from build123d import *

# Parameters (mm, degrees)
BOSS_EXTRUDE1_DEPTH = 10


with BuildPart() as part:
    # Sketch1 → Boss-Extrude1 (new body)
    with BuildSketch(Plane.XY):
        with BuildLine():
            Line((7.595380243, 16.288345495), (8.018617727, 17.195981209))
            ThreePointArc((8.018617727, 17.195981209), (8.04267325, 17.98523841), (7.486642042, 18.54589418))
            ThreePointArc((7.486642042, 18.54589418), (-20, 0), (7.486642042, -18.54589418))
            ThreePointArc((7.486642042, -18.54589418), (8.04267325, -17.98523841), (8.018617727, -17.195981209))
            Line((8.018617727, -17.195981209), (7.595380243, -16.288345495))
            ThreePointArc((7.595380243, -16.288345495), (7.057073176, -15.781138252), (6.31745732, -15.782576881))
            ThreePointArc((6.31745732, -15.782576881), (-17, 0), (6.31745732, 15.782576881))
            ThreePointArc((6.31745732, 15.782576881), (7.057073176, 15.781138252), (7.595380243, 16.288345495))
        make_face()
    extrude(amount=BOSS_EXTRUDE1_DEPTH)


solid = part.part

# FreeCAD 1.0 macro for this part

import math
import FreeCAD as App
import Part
import Sketcher
Q = App.Units.Quantity

doc = App.newDocument("Part")
body = doc.addObject("PartDesign::Body", "Body")

# Sketch on XY plane
sketch1 = doc.addObject("Sketcher::SketchObject", "Sketch")
body.addObject(sketch1)
sketch1.AttachmentSupport = (doc.XY_Plane, [""])
sketch1.MapMode = "FlatFace"
sketch1.addGeometry([
    Part.LineSegment(App.Vector(7.59538, 16.288345, 0), App.Vector(8.018618, 17.195981, 0)),  # 0
    Part.ArcOfCircle(Part.Circle(App.Vector(7.11231, 17.618599, 0), App.Vector(0, 0, 1), 1), math.radians(-25), math.radians(68.016961)),  # 1
    Part.ArcOfCircle(Part.Circle(App.Vector(0, 0, 0), App.Vector(0, 0, 1), 20), math.radians(68.016961), math.radians(291.983039)),  # 2
    Part.ArcOfCircle(Part.Circle(App.Vector(7.11231, -17.618599, 0), App.Vector(0, 0, 1), 1), math.radians(-68.016961), math.radians(25)),  # 3
    Part.LineSegment(App.Vector(8.018618, -17.195981, 0), App.Vector(7.59538, -16.288345, 0)),  # 4
    Part.ArcOfCircle(Part.Circle(App.Vector(6.689072, -16.710964, 0), App.Vector(0, 0, 1), 1), math.radians(25), math.radians(111.815261)),  # 5
    Part.ArcOfCircle(Part.Circle(App.Vector(0, 0, 0), App.Vector(0, 0, 1), 17), math.radians(68.184739), math.radians(291.815261)),  # 6
    Part.ArcOfCircle(Part.Circle(App.Vector(6.689072, 16.710964, 0), App.Vector(0, 0, 1), 1), math.radians(-111.815261), math.radians(-25)),  # 7
], False)
sketch1.addConstraint([
    Sketcher.Constraint("Tangent", 0, 2, 1, 1),
    Sketcher.Constraint("Tangent", 1, 2, 2, 1),
    Sketcher.Constraint("Tangent", 2, 2, 3, 1),
    Sketcher.Constraint("Tangent", 3, 2, 4, 1),
    Sketcher.Constraint("Tangent", 4, 2, 5, 1),
    Sketcher.Constraint("Tangent", 5, 2, 6, 2),
    Sketcher.Constraint("Tangent", 6, 1, 7, 1),
    Sketcher.Constraint("Tangent", 7, 2, 0, 1),
    Sketcher.Constraint("Coincident", 2, 3, -1, 1),
    Sketcher.Constraint("Coincident", 6, 3, -1, 1),
    Sketcher.Constraint("Equal", 1, 3),
    Sketcher.Constraint("Equal", 3, 5),
    Sketcher.Constraint("Equal", 5, 7),
    Sketcher.Constraint("Symmetric", 0, 2, 3, 2, -1),
    Sketcher.Constraint("Radius", 1, 1.0),
    Sketcher.Constraint("Radius", 2, 20.0),
    Sketcher.Constraint("Radius", 6, 17.0),
    Sketcher.Constraint("Angle", 0, Q("65 deg")),
    Sketcher.Constraint("DistanceY", -1, 1, 1, 3, 17.618599),
])
pad1 = doc.addObject("PartDesign::Pad", "Pad")
body.addObject(pad1)
pad1.Profile = sketch1
pad1.Length = 10

doc.recompute()
